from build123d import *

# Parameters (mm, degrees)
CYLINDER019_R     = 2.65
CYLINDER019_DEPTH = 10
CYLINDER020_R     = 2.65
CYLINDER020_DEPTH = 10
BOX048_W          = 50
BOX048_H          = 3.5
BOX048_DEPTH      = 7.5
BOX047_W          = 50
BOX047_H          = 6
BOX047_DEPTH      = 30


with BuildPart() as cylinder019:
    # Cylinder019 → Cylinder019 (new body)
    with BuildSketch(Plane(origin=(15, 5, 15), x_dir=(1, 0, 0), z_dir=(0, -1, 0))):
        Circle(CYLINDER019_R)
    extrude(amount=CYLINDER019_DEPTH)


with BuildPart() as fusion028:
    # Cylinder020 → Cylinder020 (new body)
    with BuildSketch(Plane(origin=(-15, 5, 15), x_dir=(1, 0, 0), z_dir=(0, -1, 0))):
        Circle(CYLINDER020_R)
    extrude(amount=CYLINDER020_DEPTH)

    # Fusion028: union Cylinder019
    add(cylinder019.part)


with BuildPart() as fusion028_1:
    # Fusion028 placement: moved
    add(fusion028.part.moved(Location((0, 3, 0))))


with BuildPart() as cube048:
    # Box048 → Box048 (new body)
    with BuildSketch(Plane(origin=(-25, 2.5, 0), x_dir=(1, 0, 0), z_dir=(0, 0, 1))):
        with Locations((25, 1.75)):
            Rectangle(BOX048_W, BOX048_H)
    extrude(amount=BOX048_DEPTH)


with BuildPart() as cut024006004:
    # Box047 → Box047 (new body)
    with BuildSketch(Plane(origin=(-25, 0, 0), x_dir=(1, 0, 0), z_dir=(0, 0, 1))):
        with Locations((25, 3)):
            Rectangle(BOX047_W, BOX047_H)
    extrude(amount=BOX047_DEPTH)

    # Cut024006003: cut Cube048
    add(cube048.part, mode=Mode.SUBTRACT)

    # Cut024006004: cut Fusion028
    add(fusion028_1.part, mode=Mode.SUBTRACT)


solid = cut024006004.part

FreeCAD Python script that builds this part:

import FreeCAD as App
import Part
import Sketcher

V = App.Vector
Q = App.Units.Quantity


def add_polygon(sketch, points):
    """Adds a closed chain of lines whose ends are joined by coincident constraints."""
    first, n = sketch.GeometryCount, len(points)
    for a, b in zip(points, points[1:] + points[:1]):
        sketch.addGeometry(Part.LineSegment(App.Vector(*a, 0), App.Vector(*b, 0)), False)
    for i in range(n):
        sketch.addConstraint(Sketcher.Constraint("Coincident", first + i, 2, first + (i + 1) % n, 1))

doc = App.newDocument("Part")
body = doc.addObject("PartDesign::Body", "Body")

# Sketch on XZ plane
sketch1 = doc.addObject("Sketcher::SketchObject", "Sketch")
body.addObject(sketch1)
sketch1.AttachmentSupport = (doc.XZ_Plane, [""])
sketch1.MapMode = "FlatFace"
sketch1.AttachmentOffset = App.Placement(V(0, 0, -5), App.Rotation())
sketch1.addGeometry(Part.Circle(V(15, 15, 0), V(0, 0, 1), 2.65), False)
sketch1.addConstraint(Sketcher.Constraint("Diameter", 0, Q("5.3 mm")))
sketch1.addConstraint(Sketcher.Constraint("DistanceX", -1, 1, 0, 3, Q("15 mm")))
sketch1.addConstraint(Sketcher.Constraint("DistanceY", -1, 1, 0, 3, Q("15 mm")))
pad1 = doc.addObject("PartDesign::Pad", "Pad")
body.addObject(pad1)
pad1.Profile = sketch1
pad1.Length = 10
body2 = doc.addObject("PartDesign::Body", "Body001")
body2.AllowCompound = True

# Sketch on XZ plane
sketch2 = doc.addObject("Sketcher::SketchObject", "Sketch001")
body2.addObject(sketch2)
sketch2.AttachmentSupport = (doc.getObject("XZ_Plane001"), [""])
sketch2.MapMode = "FlatFace"
sketch2.AttachmentOffset = App.Placement(V(0, 0, -5), App.Rotation())
sketch2.addGeometry(Part.Circle(V(-15, 15, 0), V(0, 0, 1), 2.65), False)
sketch2.addConstraint(Sketcher.Constraint("Diameter", 0, Q("5.3 mm")))
sketch2.addConstraint(Sketcher.Constraint("DistanceX", 0, 3, -1, 1, Q("15 mm")))
sketch2.addConstraint(Sketcher.Constraint("DistanceY", -1, 1, 0, 3, Q("15 mm")))
pad2 = doc.addObject("PartDesign::Pad", "Pad001")
body2.addObject(pad2)
pad2.Profile = sketch2
pad2.Length = 10
doc.recompute()

boolean = doc.addObject("PartDesign::Boolean", "Boolean")
body2.addObject(boolean)
boolean.Type = "Fuse"
boolean.addObjects([body])
body3 = doc.addObject("PartDesign::Body", "Body002")
body3.AllowCompound = True
doc.recompute()

body2.Placement = App.Placement(V(0, 3, 0), App.Rotation(V(0, 0, 1), 0))
boolean2 = doc.addObject("PartDesign::Boolean", "Boolean001")
body3.addObject(boolean2)
boolean2.Type = "Fuse"
boolean2.addObjects([body2])
body4 = doc.addObject("PartDesign::Body", "Body003")

# Sketch on XY plane
sketch3 = doc.addObject("Sketcher::SketchObject", "Sketch002")
body4.addObject(sketch3)
sketch3.AttachmentSupport = (doc.getObject("XY_Plane003"), [""])
sketch3.MapMode = "FlatFace"
add_polygon(sketch3, [(-25, 6), (-25, 2.5), (25, 2.5), (25, 6)])  # lines 0-3
sketch3.addConstraint(Sketcher.Constraint("Vertical", 0))
sketch3.addConstraint(Sketcher.Constraint("Horizontal", 1))
sketch3.addConstraint(Sketcher.Constraint("Vertical", 2))
sketch3.addConstraint(Sketcher.Constraint("Horizontal", 3))
sketch3.addConstraint(Sketcher.Constraint("DistanceX", 1, 1, 1, 2, Q("50 mm")))
sketch3.addConstraint(Sketcher.Constraint("DistanceY", 0, 2, 0, 1, Q("3.5 mm")))
sketch3.addConstraint(Sketcher.Constraint("DistanceX", 0, 2, -1, 1, Q("25 mm")))
sketch3.addConstraint(Sketcher.Constraint("DistanceY", -1, 1, 2, 2, Q("6 mm")))
pad3 = doc.addObject("PartDesign::Pad", "Pad002")
body4.addObject(pad3)
pad3.Profile = sketch3
pad3.Length = 7.5
body5 = doc.addObject("PartDesign::Body", "Body004")

# Sketch on XY plane
sketch4 = doc.addObject("Sketcher::SketchObject", "Sketch003")
body5.addObject(sketch4)
sketch4.AttachmentSupport = (doc.getObject("XY_Plane004"), [""])
sketch4.MapMode = "FlatFace"
add_polygon(sketch4, [(-25, 6), (-25, 0), (25, 0), (25, 6)])  # lines 0-3
sketch4.addConstraint(Sketcher.Constraint("Vertical", 0))
sketch4.addConstraint(Sketcher.Constraint("Horizontal", 1))
sketch4.addConstraint(Sketcher.Constraint("Vertical", 2))
sketch4.addConstraint(Sketcher.Constraint("Horizontal", 3))
sketch4.addConstraint(Sketcher.Constraint("Symmetric", 0, 2, 1, 2, -1, 1))
sketch4.addConstraint(Sketcher.Constraint("DistanceX", 1, 1, 1, 2, Q("50 mm")))
sketch4.addConstraint(Sketcher.Constraint("DistanceY", 0, 2, 0, 1, Q("6 mm")))
pad4 = doc.addObject("PartDesign::Pad", "Pad003")
body5.addObject(pad4)
pad4.Profile = sketch4
pad4.Length = 30
doc.recompute()

boolean3 = doc.addObject("PartDesign::Boolean", "Boolean002")
body5.addObject(boolean3)
boolean3.Type = "Cut"
boolean3.addObjects([body4])
doc.recompute()

boolean4 = doc.addObject("PartDesign::Boolean", "Boolean003")
body5.addObject(boolean4)
boolean4.Type = "Cut"
boolean4.addObjects([body3])

doc.recompute()
